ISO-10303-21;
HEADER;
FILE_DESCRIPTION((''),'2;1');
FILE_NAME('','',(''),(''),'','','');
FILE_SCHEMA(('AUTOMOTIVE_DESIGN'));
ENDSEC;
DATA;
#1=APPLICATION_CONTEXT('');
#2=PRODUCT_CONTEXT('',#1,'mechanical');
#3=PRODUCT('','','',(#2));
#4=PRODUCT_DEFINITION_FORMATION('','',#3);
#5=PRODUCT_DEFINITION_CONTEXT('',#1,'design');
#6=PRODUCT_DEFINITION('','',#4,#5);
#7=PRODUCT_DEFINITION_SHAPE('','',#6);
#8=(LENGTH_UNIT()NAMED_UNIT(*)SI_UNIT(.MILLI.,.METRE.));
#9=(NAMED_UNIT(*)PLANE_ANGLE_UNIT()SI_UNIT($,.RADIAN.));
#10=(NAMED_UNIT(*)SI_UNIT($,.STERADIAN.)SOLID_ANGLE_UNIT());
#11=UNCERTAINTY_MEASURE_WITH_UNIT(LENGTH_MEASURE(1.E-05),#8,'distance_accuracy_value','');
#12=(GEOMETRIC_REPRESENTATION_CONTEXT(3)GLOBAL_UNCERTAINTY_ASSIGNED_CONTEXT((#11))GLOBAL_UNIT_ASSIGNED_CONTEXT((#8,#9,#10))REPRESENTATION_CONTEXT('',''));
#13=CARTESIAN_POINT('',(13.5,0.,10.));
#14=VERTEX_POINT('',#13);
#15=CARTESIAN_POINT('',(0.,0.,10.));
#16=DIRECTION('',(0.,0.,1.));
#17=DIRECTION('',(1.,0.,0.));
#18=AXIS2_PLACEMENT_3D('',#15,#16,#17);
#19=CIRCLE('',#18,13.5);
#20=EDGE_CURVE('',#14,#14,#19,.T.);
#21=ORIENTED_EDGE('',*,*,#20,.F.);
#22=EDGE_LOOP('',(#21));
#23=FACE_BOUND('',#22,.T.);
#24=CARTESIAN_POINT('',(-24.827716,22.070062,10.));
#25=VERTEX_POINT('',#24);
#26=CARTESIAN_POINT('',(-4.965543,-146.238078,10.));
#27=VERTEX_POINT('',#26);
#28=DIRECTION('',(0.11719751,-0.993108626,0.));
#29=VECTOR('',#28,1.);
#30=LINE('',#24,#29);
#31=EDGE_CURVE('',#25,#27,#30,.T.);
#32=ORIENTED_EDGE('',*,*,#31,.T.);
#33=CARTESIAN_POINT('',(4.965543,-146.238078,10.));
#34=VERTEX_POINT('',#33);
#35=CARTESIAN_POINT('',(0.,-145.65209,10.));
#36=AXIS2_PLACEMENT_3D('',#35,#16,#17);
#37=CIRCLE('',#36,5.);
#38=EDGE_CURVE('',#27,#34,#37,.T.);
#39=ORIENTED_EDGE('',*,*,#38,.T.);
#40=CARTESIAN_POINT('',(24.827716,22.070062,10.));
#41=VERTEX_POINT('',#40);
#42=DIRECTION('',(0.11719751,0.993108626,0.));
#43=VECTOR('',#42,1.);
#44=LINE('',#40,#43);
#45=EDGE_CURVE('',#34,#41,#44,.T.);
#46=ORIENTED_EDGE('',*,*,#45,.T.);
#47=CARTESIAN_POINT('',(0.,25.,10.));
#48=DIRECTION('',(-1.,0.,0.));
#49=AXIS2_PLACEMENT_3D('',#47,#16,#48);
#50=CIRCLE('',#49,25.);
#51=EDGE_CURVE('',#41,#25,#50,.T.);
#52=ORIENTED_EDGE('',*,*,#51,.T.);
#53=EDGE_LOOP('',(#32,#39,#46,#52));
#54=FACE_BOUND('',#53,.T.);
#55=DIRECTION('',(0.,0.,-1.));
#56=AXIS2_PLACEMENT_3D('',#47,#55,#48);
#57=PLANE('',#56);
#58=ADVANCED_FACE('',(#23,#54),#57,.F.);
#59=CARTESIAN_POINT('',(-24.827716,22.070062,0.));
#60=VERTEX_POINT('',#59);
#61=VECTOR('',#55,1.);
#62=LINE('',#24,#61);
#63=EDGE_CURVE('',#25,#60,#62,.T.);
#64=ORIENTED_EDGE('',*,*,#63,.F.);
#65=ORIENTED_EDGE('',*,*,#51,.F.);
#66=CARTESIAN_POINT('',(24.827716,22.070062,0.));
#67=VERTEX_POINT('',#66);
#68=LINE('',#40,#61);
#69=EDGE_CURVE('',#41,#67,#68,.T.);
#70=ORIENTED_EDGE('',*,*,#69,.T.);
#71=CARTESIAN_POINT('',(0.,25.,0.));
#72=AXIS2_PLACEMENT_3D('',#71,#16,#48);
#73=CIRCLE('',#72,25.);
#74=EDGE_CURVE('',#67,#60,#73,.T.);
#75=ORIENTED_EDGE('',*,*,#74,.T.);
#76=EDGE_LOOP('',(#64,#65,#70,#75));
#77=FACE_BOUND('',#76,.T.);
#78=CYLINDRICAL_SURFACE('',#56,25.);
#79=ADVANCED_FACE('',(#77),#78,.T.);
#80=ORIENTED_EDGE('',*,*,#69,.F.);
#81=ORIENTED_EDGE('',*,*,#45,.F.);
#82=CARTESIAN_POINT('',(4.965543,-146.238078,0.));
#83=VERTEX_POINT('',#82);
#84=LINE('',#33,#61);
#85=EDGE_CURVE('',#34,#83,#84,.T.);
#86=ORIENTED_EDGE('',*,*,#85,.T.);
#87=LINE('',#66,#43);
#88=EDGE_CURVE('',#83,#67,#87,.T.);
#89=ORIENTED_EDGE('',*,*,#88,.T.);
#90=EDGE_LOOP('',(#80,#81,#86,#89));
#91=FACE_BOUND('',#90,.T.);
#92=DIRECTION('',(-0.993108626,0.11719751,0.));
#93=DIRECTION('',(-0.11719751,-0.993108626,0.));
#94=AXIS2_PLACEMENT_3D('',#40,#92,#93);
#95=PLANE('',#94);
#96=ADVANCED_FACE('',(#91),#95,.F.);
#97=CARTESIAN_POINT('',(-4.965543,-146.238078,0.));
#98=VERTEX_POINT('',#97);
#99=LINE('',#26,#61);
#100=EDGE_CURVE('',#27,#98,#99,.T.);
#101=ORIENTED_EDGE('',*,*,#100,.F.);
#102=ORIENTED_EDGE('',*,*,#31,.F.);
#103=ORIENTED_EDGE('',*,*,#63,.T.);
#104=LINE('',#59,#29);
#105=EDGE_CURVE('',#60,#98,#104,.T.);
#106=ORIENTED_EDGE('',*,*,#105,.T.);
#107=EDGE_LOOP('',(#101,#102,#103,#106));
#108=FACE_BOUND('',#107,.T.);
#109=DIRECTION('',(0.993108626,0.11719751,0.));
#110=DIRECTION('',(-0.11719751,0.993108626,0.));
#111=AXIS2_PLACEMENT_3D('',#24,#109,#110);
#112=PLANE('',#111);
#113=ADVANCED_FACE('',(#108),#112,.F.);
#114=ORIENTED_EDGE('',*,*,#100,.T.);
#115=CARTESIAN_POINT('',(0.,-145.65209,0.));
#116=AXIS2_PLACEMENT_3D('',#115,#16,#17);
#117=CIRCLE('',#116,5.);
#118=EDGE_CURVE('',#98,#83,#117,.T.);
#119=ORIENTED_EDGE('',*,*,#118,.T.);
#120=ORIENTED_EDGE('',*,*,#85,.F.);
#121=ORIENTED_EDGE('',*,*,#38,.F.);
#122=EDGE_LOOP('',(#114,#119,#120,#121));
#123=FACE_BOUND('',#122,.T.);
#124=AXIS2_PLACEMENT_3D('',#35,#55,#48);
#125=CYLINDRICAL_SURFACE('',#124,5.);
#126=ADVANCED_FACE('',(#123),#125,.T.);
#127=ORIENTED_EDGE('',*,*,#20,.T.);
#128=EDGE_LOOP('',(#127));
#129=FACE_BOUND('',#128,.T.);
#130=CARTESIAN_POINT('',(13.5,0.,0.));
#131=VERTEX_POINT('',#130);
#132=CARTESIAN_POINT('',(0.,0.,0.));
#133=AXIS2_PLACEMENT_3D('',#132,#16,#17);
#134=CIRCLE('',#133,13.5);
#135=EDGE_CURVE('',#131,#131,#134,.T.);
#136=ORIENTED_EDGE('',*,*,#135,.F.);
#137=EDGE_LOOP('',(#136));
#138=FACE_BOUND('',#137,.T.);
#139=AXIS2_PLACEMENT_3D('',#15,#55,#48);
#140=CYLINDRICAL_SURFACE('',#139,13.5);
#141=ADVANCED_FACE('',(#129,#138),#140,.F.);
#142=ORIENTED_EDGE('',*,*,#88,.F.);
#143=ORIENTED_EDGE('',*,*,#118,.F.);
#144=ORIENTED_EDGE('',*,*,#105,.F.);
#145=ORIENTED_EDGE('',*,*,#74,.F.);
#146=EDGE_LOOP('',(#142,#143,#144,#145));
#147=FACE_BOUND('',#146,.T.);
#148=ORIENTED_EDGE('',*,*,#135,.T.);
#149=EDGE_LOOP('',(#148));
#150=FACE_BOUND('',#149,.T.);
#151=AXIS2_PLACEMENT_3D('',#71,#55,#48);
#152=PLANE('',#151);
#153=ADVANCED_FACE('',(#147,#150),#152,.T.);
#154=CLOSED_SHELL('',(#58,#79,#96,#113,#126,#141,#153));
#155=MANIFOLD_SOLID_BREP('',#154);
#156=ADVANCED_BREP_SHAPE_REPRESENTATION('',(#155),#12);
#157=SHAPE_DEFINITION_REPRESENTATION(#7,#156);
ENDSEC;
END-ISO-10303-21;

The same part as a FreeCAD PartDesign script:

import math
import FreeCAD as App
import Part
import Sketcher

V = App.Vector
Q = App.Units.Quantity

doc = App.newDocument("Part")
body = doc.addObject("PartDesign::Body", "Body")

# Sketch on XY plane
sketch1 = body.newObject("Sketcher::SketchObject", "Sketch")
sketch1.AttachmentSupport = (doc.getObject("XY_Plane"), [""])
sketch1.MapMode = "FlatFace"
sketch1.addGeometry([
    Part.LineSegment(V(4.965543, -146.238078, 0), V(24.827716, 22.070062, 0)),  # 0
    Part.ArcOfCircle(Part.Circle(V(0, 25, 0), V(0, 0, 1), 25), math.radians(-6.73039), math.radians(186.73039)),  # 1
    Part.LineSegment(V(-24.827716, 22.070062, 0), V(-4.965543, -146.238078, 0)),  # 2
    Part.ArcOfCircle(Part.Circle(V(0, -145.65209, 0), V(0, 0, 1), 5), math.radians(-173.26961), math.radians(-6.73039)),  # 3
    Part.Circle(V(0, 0, 0), V(0, 0, 1), 13.5),  # 4
], False)
sketch1.addConstraint([
    Sketcher.Constraint("Tangent", 0, 2, 1, 1),
    Sketcher.Constraint("Tangent", 1, 2, 2, 1),
    Sketcher.Constraint("Tangent", 2, 2, 3, 1),
    Sketcher.Constraint("Tangent", 3, 2, 0, 1),
    Sketcher.Constraint("Coincident", 4, 3, -1, 1),
    Sketcher.Constraint("Symmetric", 0, 2, 1, 2, -2),
    Sketcher.Constraint("Diameter", 4, Q("27 mm")),
    Sketcher.Constraint("Radius", 1, Q("25 mm")),
    Sketcher.Constraint("Radius", 3, Q("5 mm")),
    Sketcher.Constraint("DistanceY", -1, 1, 1, 3, Q("25 mm")),
    Sketcher.Constraint("DistanceY", 3, 3, -1, 1, Q("145.65209 mm")),
])
pad1 = body.newObject("PartDesign::Pad", "Pad")
pad1.Profile = sketch1
pad1.Length = 10

doc.recompute()
